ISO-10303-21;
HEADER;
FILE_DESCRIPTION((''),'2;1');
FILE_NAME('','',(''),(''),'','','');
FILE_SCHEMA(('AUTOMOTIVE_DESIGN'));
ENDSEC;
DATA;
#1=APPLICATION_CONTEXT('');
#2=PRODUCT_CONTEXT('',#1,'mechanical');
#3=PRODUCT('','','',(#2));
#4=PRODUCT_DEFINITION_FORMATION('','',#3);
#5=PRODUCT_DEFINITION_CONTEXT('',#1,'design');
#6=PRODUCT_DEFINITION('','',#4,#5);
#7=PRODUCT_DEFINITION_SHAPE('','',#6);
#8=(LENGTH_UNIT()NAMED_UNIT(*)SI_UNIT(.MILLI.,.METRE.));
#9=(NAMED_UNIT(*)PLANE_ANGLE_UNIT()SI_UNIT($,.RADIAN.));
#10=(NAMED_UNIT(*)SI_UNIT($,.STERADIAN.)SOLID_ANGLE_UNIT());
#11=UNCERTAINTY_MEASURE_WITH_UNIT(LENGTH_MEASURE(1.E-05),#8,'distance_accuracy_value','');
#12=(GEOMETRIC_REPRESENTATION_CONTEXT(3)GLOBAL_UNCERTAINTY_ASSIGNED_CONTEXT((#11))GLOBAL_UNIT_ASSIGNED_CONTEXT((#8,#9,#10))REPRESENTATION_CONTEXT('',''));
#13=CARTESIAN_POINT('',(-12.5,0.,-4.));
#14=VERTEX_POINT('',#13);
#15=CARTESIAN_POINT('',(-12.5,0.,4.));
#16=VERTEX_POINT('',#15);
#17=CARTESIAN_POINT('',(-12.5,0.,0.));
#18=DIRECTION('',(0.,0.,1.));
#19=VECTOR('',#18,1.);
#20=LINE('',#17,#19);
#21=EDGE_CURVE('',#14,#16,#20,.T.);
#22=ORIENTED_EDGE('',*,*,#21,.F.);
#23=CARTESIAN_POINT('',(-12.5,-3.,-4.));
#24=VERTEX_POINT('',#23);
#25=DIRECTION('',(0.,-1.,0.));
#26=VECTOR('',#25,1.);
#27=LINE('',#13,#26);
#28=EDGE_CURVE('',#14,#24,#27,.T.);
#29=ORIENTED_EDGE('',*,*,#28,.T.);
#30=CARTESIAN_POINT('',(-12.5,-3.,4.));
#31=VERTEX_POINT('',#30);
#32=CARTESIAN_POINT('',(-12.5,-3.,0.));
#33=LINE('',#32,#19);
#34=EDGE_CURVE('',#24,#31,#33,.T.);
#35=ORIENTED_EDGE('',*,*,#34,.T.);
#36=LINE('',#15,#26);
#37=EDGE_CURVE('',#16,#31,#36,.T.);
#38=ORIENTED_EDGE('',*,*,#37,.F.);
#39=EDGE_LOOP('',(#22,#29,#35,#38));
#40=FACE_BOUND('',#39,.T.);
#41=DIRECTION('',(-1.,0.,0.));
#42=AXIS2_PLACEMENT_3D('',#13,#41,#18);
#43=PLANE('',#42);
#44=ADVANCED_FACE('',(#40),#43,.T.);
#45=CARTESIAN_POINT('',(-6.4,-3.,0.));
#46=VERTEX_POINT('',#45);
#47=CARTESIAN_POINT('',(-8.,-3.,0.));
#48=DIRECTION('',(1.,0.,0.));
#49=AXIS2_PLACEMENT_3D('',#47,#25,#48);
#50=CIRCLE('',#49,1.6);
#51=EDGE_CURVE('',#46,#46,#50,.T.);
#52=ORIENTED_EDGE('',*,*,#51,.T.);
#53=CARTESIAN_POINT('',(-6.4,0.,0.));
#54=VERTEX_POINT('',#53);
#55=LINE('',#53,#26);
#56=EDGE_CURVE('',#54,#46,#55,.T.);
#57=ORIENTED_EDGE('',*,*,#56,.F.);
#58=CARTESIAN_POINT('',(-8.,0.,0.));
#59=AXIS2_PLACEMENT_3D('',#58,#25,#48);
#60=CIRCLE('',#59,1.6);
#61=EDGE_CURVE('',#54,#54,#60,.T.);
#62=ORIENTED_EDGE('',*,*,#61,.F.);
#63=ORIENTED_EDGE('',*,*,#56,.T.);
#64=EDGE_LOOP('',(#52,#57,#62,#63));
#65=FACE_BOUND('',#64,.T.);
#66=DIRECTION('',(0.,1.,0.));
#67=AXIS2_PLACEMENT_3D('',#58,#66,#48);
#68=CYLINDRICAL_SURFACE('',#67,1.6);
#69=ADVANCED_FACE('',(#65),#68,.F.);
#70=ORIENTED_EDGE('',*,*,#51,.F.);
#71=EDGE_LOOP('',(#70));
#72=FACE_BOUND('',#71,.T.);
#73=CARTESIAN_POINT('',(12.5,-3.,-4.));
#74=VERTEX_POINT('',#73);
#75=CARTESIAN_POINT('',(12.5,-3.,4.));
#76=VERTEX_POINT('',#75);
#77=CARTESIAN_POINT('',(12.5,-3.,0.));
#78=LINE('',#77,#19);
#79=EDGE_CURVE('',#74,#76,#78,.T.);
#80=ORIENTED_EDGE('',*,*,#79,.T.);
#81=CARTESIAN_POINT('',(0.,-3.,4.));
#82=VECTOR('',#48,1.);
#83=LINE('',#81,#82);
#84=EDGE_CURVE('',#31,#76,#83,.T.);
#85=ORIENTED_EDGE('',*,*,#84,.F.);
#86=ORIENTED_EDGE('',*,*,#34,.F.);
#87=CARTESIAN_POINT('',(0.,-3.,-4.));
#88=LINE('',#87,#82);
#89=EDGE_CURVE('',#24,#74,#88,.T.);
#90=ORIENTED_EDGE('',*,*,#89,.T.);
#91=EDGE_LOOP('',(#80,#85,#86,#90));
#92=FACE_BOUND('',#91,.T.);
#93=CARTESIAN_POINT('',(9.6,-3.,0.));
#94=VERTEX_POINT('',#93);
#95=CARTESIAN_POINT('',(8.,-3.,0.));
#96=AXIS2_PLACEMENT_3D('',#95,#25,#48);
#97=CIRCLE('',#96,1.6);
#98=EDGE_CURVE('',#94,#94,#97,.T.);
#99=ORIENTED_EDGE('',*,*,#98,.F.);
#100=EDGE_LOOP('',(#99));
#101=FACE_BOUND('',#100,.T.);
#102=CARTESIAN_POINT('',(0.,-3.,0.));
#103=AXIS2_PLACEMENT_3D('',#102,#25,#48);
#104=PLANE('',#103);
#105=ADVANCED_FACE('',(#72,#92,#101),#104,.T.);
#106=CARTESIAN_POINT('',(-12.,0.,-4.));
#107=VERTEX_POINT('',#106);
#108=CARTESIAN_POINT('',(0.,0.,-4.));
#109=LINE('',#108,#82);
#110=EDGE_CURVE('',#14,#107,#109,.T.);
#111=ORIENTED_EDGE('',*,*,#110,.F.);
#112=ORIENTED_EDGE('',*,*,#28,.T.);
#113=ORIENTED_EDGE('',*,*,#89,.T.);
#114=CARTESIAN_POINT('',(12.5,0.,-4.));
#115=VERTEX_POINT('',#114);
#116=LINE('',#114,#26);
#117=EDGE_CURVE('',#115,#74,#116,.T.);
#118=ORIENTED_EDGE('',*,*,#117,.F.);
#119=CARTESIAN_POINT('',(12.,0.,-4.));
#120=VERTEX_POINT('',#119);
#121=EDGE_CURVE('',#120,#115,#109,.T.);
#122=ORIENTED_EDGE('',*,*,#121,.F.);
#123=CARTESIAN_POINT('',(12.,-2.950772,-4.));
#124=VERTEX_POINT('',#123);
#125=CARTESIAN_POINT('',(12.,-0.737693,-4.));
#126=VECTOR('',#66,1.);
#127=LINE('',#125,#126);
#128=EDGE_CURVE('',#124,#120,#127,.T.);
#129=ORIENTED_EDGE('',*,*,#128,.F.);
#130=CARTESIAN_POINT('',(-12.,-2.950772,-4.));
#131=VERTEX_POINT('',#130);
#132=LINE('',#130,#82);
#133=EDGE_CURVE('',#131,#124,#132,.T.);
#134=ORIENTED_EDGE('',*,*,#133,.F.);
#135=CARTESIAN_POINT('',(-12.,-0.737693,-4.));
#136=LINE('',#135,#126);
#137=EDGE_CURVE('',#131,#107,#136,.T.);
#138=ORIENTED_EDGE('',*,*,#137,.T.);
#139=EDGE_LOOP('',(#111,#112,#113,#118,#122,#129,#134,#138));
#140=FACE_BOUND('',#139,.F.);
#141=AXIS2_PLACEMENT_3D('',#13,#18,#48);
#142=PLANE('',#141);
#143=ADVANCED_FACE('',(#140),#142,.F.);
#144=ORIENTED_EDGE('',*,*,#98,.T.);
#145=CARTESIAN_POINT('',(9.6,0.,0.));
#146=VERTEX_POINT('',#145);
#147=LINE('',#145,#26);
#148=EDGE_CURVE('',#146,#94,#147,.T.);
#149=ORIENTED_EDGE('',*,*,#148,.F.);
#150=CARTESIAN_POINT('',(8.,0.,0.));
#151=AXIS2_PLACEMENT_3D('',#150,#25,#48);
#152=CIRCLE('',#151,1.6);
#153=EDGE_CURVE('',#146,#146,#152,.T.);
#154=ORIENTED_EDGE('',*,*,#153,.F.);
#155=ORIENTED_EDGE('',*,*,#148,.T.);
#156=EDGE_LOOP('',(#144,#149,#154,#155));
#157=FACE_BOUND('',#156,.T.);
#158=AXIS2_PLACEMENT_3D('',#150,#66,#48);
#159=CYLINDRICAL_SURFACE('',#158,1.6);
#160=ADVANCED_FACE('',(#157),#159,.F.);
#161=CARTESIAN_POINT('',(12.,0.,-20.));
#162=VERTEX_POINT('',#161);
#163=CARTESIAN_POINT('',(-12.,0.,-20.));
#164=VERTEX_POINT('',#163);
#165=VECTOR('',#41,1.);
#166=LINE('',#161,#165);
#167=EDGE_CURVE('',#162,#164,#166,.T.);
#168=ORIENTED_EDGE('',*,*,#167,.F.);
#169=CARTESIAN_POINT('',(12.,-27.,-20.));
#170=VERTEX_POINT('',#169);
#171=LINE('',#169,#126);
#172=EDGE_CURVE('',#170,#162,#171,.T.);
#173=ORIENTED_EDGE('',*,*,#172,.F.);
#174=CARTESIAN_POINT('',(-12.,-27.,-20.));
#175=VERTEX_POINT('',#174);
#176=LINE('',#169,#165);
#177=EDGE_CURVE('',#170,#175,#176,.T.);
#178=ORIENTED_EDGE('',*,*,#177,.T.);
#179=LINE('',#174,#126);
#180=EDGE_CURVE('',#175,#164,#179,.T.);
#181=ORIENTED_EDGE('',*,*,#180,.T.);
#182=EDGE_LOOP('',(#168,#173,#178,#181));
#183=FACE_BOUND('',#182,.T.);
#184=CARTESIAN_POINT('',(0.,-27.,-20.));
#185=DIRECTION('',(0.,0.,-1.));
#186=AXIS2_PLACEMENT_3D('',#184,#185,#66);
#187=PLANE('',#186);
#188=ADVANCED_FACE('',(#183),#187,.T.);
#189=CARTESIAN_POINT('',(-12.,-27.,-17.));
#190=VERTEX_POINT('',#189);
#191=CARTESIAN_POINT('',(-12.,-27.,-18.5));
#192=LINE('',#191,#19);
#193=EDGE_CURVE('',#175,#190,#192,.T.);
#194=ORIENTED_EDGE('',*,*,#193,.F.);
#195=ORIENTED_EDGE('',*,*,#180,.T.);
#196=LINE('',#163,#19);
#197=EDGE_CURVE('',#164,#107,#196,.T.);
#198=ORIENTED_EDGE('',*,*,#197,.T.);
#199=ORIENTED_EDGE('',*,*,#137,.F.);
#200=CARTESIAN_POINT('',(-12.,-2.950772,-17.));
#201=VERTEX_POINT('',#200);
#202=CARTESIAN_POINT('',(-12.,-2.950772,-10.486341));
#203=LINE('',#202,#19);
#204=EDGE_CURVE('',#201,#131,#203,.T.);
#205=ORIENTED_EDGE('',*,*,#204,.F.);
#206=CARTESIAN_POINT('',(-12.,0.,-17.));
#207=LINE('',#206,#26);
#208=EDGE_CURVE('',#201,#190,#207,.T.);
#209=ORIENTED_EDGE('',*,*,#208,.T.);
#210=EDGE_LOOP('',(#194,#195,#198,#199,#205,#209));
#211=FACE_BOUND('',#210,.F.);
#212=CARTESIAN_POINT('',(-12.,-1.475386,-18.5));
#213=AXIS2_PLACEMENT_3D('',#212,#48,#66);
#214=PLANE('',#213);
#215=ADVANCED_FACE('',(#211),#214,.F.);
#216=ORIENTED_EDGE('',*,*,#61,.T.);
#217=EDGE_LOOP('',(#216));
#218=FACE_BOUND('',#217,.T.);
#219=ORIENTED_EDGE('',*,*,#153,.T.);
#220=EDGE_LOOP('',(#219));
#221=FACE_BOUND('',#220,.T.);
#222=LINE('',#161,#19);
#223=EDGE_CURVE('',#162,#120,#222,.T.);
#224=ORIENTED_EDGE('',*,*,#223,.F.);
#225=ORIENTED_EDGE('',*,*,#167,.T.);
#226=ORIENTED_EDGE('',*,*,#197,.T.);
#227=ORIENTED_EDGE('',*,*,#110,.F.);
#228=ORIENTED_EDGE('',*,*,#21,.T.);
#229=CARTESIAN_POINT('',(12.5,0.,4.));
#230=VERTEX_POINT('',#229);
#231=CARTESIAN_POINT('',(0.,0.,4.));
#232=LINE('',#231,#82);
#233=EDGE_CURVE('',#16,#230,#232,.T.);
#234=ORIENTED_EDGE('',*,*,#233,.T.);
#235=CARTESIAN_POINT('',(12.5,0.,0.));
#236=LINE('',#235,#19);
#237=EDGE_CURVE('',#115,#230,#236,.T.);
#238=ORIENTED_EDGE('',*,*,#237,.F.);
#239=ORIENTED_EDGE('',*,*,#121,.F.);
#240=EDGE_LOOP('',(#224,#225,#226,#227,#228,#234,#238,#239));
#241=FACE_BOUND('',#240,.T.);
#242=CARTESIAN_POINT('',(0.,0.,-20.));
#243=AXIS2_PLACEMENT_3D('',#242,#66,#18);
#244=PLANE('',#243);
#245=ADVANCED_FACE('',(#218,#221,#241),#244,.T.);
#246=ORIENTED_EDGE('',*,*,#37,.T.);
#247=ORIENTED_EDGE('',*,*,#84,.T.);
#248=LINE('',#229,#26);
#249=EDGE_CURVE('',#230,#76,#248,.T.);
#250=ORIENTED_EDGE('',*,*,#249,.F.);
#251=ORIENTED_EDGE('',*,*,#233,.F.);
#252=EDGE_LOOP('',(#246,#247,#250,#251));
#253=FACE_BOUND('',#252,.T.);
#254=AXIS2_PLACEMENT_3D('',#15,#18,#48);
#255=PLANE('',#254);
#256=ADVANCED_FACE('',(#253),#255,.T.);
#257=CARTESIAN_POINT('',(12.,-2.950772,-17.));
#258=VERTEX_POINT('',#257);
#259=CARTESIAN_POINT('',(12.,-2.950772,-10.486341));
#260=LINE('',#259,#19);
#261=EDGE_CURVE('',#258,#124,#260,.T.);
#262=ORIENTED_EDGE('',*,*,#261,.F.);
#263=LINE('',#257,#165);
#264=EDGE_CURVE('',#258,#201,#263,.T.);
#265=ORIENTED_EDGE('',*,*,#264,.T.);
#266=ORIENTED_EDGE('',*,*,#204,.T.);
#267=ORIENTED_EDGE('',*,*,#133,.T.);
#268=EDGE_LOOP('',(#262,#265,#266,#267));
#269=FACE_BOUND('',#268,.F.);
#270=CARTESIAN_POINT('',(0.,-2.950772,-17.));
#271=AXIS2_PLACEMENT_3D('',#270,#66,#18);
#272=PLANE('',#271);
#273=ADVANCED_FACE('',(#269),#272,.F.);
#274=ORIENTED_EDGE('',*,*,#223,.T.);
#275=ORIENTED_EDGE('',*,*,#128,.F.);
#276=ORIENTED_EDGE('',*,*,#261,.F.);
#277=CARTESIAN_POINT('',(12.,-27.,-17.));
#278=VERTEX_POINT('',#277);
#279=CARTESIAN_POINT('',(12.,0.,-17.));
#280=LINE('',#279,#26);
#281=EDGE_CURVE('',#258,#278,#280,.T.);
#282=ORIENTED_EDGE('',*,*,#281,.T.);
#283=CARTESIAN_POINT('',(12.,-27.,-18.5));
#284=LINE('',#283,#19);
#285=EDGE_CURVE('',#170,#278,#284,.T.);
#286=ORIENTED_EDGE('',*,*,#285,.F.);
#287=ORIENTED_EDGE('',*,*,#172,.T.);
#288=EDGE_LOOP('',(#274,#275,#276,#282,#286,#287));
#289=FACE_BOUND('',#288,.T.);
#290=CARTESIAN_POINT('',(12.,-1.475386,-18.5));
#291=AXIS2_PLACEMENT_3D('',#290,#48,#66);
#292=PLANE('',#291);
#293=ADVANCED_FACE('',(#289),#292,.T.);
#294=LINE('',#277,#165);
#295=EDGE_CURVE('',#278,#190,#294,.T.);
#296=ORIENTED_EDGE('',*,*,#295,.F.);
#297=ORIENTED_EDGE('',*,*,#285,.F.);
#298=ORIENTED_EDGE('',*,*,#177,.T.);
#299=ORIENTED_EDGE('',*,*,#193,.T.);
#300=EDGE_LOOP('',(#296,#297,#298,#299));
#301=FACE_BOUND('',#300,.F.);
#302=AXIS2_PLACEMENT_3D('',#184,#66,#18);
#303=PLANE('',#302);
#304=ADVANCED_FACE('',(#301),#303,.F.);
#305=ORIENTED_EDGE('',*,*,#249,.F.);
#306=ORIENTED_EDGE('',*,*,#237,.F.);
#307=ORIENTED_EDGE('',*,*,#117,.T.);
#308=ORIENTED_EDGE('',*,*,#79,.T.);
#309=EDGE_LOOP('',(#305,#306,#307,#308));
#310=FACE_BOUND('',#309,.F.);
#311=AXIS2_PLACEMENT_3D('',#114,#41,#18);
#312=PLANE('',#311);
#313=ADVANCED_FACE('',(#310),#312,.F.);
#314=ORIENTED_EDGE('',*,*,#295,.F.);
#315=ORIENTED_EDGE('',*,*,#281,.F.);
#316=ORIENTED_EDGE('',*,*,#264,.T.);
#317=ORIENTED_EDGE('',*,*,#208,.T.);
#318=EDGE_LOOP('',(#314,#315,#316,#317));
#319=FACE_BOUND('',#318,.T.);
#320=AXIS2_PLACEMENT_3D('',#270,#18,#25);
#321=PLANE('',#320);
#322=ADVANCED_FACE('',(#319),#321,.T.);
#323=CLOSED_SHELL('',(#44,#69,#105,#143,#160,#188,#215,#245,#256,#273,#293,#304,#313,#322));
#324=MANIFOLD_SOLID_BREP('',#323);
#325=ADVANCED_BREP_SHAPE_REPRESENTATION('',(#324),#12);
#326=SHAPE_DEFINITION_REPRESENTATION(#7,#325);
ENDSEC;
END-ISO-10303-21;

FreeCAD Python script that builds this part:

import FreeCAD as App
import Part
import Sketcher

V = App.Vector
Q = App.Units.Quantity

doc = App.newDocument("Part")
body = doc.addObject("PartDesign::Body", "Body")

sketch1 = body.newObject("Sketcher::SketchObject", "Sketch")
sketch1.AttachmentSupport = (doc.getObject("XZ_Plane"), [""])
sketch1.MapMode = "FlatFace"
sketch1.addGeometry(Part.LineSegment(V(-12.5, 4, 0), V(-12.5, -4, 0)), False)
sketch1.addGeometry(Part.LineSegment(V(-12.5, -4, 0), V(12.5, -4, 0)), False)
sketch1.addGeometry(Part.LineSegment(V(12.5, -4, 0), V(12.5, 4, 0)), False)
sketch1.addGeometry(Part.LineSegment(V(12.5, 4, 0), V(-12.5, 4, 0)), False)
sketch1.addGeometry(Part.Circle(V(-8, 0, 0), V(0, 0, 1), 1.6), False)
sketch1.addGeometry(Part.Circle(V(8, 0, 0), V(0, 0, 1), 1.6), False)
sketch1.addConstraint(Sketcher.Constraint("Coincident", 0, 2, 1, 1))
sketch1.addConstraint(Sketcher.Constraint("Coincident", 1, 2, 2, 1))
sketch1.addConstraint(Sketcher.Constraint("Coincident", 2, 2, 3, 1))
sketch1.addConstraint(Sketcher.Constraint("Coincident", 3, 2, 0, 1))
sketch1.addConstraint(Sketcher.Constraint("Vertical", 0))
sketch1.addConstraint(Sketcher.Constraint("Horizontal", 1))
sketch1.addConstraint(Sketcher.Constraint("Vertical", 2))
sketch1.addConstraint(Sketcher.Constraint("Horizontal", 3))
sketch1.addConstraint(Sketcher.Constraint("Equal", 4, 5))
sketch1.addConstraint(Sketcher.Constraint("Symmetric", 4, 3, 5, 3, -1, 1))
sketch1.addConstraint(Sketcher.Constraint("Symmetric", 0, 2, 2, 2, -1, 1))
sketch1.addConstraint(Sketcher.Constraint("PointOnObject", 4, 3, -1))
sketch1.addConstraint(Sketcher.Constraint("Diameter", 4, Q("3.2 mm")))
sketch1.addConstraint(Sketcher.Constraint("DistanceX", 1, 1, 1, 2, Q("25 mm")))
sketch1.addConstraint(Sketcher.Constraint("DistanceY", 0, 2, 0, 1, Q("8 mm")))
sketch1.addConstraint(Sketcher.Constraint("DistanceX", 4, 3, -1, 1, Q("8 mm")))
pad1 = body.newObject("PartDesign::Pad", "Pad")
pad1.Profile = sketch1
pad1.Length = 3

sketch2 = body.newObject("Sketcher::SketchObject", "Sketch001")
sketch2.AttachmentSupport = (doc.getObject("YZ_Plane"), [""])
sketch2.MapMode = "FlatFace"
sketch2.addGeometry(Part.LineSegment(V(0, -20, 0), V(0, -3.972682, 0)), False)
sketch2.addGeometry(Part.LineSegment(V(0, -3.972682, 0), V(-2.950772, -3.972682, 0)), False)
sketch2.addGeometry(Part.LineSegment(V(-2.950772, -3.972682, 0), V(-2.950772, -17, 0)), False)
sketch2.addGeometry(Part.LineSegment(V(-2.950772, -17, 0), V(-27, -17, 0)), False)
sketch2.addGeometry(Part.LineSegment(V(-27, -17, 0), V(-27, -20, 0)), False)
sketch2.addGeometry(Part.LineSegment(V(-27, -20, 0), V(0, -20, 0)), False)
sketch2.addConstraint(Sketcher.Constraint("Coincident", 0, 2, 1, 1))
sketch2.addConstraint(Sketcher.Constraint("Coincident", 1, 2, 2, 1))
sketch2.addConstraint(Sketcher.Constraint("Coincident", 2, 2, 3, 1))
sketch2.addConstraint(Sketcher.Constraint("Coincident", 3, 2, 4, 1))
sketch2.addConstraint(Sketcher.Constraint("Coincident", 4, 2, 5, 1))
sketch2.addConstraint(Sketcher.Constraint("Coincident", 5, 2, 0, 1))
sketch2.addConstraint(Sketcher.Constraint("Vertical", 0))
sketch2.addConstraint(Sketcher.Constraint("Horizontal", 1))
sketch2.addConstraint(Sketcher.Constraint("Vertical", 2))
sketch2.addConstraint(Sketcher.Constraint("Horizontal", 3))
sketch2.addConstraint(Sketcher.Constraint("Vertical", 4))
sketch2.addConstraint(Sketcher.Constraint("Horizontal", 5))
sketch2.addConstraint(Sketcher.Constraint("PointOnObject", 0, 2, -2))
sketch2.addConstraint(Sketcher.Constraint("DistanceX", 5, 1, 5, 2, Q("27 mm")))
sketch2.addConstraint(Sketcher.Constraint("DistanceY", 4, 2, 4, 1, Q("3 mm")))
sketch2.addConstraint(Sketcher.Constraint("DistanceY", 2, 2, -1, 1, Q("17 mm")))
sketch2.addConstraint(Sketcher.Constraint("DistanceY", 0, 1, 0, 2, Q("16.027318 mm")))
sketch2.addConstraint(Sketcher.Constraint("DistanceX", 1, 2, 1, 1, Q("2.950772 mm")))
pad2 = body.newObject("PartDesign::Pad", "Pad001")
pad2.Profile = sketch2
pad2.Type = "TwoLengths"
pad2.Length = 12
pad2.Length2 = 12

doc.recompute()
